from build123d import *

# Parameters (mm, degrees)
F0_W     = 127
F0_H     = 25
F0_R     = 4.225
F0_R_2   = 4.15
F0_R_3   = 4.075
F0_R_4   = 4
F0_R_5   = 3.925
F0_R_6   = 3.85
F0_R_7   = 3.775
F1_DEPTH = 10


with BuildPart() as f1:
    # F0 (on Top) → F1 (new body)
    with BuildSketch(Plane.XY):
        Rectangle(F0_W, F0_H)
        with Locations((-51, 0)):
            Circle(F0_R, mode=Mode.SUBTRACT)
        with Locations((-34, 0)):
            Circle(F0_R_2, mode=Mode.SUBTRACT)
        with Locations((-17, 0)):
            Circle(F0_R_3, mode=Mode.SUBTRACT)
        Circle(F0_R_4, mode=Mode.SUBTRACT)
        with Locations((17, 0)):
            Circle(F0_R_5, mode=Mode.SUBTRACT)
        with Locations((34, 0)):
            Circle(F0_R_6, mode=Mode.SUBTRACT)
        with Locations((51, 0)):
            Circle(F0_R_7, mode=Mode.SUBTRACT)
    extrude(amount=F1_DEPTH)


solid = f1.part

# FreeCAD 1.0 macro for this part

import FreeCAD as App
import Part
import Sketcher

V = App.Vector

doc = App.newDocument("Part")
body = doc.addObject("PartDesign::Body", "Body")

# Sketch on XY plane
sketch1 = body.newObject("Sketcher::SketchObject", "Sketch")
sketch1.AttachmentSupport = (doc.getObject("XY_Plane"), [""])
sketch1.MapMode = "FlatFace"
sketch1.addGeometry(Part.LineSegment(V(-63.5, 12.5, 0), V(-63.5, -12.5, 0)), False)
sketch1.addGeometry(Part.LineSegment(V(-63.5, -12.5, 0), V(63.5, -12.5, 0)), False)
sketch1.addGeometry(Part.LineSegment(V(63.5, -12.5, 0), V(63.5, 12.5, 0)), False)
sketch1.addGeometry(Part.LineSegment(V(63.5, 12.5, 0), V(-63.5, 12.5, 0)), False)
sketch1.addGeometry(Part.Circle(V(-51, 0, 0), V(0, 0, 1), 4.225), False)
sketch1.addGeometry(Part.Circle(V(-34, 0, 0), V(0, 0, 1), 4.15), False)
sketch1.addGeometry(Part.Circle(V(-17, 0, 0), V(0, 0, 1), 4.075), False)
sketch1.addGeometry(Part.Circle(V(0, 0, 0), V(0, 0, 1), 4), False)
sketch1.addGeometry(Part.Circle(V(17, 0, 0), V(0, 0, 1), 3.925), False)
sketch1.addGeometry(Part.Circle(V(34, 0, 0), V(0, 0, 1), 3.85), False)
sketch1.addGeometry(Part.Circle(V(51, 0, 0), V(0, 0, 1), 3.775), False)
sketch1.addConstraint(Sketcher.Constraint("Coincident", 0, 2, 1, 1))
sketch1.addConstraint(Sketcher.Constraint("Coincident", 1, 2, 2, 1))
sketch1.addConstraint(Sketcher.Constraint("Coincident", 2, 2, 3, 1))
sketch1.addConstraint(Sketcher.Constraint("Coincident", 3, 2, 0, 1))
sketch1.addConstraint(Sketcher.Constraint("Vertical", 0))
sketch1.addConstraint(Sketcher.Constraint("Horizontal", 1))
sketch1.addConstraint(Sketcher.Constraint("Vertical", 2))
sketch1.addConstraint(Sketcher.Constraint("Horizontal", 3))
sketch1.addConstraint(Sketcher.Constraint("Coincident", 7, 3, -1, 1))
sketch1.addConstraint(Sketcher.Constraint("Symmetric", 6, 3, 8, 3, -1, 1))
sketch1.addConstraint(Sketcher.Constraint("Symmetric", 5, 3, 9, 3, -1, 1))
sketch1.addConstraint(Sketcher.Constraint("Symmetric", 4, 3, 10, 3, -1, 1))
sketch1.addConstraint(Sketcher.Constraint("Symmetric", 0, 2, 2, 2, -1, 1))
sketch1.addConstraint(Sketcher.Constraint("PointOnObject", 4, 3, -1))
sketch1.addConstraint(Sketcher.Constraint("PointOnObject", 5, 3, -1))
sketch1.addConstraint(Sketcher.Constraint("PointOnObject", 6, 3, -1))
sketch1.addConstraint(Sketcher.Constraint("Diameter", 7, 8.0))
sketch1.addConstraint(Sketcher.Constraint("Diameter", 5, 8.3))
sketch1.addConstraint(Sketcher.Constraint("Diameter", 9, 7.7))
sketch1.addConstraint(Sketcher.Constraint("Diameter", 4, 8.45))
sketch1.addConstraint(Sketcher.Constraint("Diameter", 6, 8.15))
sketch1.addConstraint(Sketcher.Constraint("Diameter", 8, 7.85))
sketch1.addConstraint(Sketcher.Constraint("Diameter", 10, 7.55))
sketch1.addConstraint(Sketcher.Constraint("DistanceX", 1, 1, 1, 2, 127.0))
sketch1.addConstraint(Sketcher.Constraint("DistanceY", 0, 2, 0, 1, 25.0))
sketch1.addConstraint(Sketcher.Constraint("DistanceX", 4, 3, -1, 1, 51.0))
sketch1.addConstraint(Sketcher.Constraint("DistanceX", 5, 3, -1, 1, 34.0))
sketch1.addConstraint(Sketcher.Constraint("DistanceX", 6, 3, -1, 1, 17.0))
pad1 = body.newObject("PartDesign::Pad", "Pad")
pad1.Profile = sketch1
pad1.Length = 10

doc.recompute()
